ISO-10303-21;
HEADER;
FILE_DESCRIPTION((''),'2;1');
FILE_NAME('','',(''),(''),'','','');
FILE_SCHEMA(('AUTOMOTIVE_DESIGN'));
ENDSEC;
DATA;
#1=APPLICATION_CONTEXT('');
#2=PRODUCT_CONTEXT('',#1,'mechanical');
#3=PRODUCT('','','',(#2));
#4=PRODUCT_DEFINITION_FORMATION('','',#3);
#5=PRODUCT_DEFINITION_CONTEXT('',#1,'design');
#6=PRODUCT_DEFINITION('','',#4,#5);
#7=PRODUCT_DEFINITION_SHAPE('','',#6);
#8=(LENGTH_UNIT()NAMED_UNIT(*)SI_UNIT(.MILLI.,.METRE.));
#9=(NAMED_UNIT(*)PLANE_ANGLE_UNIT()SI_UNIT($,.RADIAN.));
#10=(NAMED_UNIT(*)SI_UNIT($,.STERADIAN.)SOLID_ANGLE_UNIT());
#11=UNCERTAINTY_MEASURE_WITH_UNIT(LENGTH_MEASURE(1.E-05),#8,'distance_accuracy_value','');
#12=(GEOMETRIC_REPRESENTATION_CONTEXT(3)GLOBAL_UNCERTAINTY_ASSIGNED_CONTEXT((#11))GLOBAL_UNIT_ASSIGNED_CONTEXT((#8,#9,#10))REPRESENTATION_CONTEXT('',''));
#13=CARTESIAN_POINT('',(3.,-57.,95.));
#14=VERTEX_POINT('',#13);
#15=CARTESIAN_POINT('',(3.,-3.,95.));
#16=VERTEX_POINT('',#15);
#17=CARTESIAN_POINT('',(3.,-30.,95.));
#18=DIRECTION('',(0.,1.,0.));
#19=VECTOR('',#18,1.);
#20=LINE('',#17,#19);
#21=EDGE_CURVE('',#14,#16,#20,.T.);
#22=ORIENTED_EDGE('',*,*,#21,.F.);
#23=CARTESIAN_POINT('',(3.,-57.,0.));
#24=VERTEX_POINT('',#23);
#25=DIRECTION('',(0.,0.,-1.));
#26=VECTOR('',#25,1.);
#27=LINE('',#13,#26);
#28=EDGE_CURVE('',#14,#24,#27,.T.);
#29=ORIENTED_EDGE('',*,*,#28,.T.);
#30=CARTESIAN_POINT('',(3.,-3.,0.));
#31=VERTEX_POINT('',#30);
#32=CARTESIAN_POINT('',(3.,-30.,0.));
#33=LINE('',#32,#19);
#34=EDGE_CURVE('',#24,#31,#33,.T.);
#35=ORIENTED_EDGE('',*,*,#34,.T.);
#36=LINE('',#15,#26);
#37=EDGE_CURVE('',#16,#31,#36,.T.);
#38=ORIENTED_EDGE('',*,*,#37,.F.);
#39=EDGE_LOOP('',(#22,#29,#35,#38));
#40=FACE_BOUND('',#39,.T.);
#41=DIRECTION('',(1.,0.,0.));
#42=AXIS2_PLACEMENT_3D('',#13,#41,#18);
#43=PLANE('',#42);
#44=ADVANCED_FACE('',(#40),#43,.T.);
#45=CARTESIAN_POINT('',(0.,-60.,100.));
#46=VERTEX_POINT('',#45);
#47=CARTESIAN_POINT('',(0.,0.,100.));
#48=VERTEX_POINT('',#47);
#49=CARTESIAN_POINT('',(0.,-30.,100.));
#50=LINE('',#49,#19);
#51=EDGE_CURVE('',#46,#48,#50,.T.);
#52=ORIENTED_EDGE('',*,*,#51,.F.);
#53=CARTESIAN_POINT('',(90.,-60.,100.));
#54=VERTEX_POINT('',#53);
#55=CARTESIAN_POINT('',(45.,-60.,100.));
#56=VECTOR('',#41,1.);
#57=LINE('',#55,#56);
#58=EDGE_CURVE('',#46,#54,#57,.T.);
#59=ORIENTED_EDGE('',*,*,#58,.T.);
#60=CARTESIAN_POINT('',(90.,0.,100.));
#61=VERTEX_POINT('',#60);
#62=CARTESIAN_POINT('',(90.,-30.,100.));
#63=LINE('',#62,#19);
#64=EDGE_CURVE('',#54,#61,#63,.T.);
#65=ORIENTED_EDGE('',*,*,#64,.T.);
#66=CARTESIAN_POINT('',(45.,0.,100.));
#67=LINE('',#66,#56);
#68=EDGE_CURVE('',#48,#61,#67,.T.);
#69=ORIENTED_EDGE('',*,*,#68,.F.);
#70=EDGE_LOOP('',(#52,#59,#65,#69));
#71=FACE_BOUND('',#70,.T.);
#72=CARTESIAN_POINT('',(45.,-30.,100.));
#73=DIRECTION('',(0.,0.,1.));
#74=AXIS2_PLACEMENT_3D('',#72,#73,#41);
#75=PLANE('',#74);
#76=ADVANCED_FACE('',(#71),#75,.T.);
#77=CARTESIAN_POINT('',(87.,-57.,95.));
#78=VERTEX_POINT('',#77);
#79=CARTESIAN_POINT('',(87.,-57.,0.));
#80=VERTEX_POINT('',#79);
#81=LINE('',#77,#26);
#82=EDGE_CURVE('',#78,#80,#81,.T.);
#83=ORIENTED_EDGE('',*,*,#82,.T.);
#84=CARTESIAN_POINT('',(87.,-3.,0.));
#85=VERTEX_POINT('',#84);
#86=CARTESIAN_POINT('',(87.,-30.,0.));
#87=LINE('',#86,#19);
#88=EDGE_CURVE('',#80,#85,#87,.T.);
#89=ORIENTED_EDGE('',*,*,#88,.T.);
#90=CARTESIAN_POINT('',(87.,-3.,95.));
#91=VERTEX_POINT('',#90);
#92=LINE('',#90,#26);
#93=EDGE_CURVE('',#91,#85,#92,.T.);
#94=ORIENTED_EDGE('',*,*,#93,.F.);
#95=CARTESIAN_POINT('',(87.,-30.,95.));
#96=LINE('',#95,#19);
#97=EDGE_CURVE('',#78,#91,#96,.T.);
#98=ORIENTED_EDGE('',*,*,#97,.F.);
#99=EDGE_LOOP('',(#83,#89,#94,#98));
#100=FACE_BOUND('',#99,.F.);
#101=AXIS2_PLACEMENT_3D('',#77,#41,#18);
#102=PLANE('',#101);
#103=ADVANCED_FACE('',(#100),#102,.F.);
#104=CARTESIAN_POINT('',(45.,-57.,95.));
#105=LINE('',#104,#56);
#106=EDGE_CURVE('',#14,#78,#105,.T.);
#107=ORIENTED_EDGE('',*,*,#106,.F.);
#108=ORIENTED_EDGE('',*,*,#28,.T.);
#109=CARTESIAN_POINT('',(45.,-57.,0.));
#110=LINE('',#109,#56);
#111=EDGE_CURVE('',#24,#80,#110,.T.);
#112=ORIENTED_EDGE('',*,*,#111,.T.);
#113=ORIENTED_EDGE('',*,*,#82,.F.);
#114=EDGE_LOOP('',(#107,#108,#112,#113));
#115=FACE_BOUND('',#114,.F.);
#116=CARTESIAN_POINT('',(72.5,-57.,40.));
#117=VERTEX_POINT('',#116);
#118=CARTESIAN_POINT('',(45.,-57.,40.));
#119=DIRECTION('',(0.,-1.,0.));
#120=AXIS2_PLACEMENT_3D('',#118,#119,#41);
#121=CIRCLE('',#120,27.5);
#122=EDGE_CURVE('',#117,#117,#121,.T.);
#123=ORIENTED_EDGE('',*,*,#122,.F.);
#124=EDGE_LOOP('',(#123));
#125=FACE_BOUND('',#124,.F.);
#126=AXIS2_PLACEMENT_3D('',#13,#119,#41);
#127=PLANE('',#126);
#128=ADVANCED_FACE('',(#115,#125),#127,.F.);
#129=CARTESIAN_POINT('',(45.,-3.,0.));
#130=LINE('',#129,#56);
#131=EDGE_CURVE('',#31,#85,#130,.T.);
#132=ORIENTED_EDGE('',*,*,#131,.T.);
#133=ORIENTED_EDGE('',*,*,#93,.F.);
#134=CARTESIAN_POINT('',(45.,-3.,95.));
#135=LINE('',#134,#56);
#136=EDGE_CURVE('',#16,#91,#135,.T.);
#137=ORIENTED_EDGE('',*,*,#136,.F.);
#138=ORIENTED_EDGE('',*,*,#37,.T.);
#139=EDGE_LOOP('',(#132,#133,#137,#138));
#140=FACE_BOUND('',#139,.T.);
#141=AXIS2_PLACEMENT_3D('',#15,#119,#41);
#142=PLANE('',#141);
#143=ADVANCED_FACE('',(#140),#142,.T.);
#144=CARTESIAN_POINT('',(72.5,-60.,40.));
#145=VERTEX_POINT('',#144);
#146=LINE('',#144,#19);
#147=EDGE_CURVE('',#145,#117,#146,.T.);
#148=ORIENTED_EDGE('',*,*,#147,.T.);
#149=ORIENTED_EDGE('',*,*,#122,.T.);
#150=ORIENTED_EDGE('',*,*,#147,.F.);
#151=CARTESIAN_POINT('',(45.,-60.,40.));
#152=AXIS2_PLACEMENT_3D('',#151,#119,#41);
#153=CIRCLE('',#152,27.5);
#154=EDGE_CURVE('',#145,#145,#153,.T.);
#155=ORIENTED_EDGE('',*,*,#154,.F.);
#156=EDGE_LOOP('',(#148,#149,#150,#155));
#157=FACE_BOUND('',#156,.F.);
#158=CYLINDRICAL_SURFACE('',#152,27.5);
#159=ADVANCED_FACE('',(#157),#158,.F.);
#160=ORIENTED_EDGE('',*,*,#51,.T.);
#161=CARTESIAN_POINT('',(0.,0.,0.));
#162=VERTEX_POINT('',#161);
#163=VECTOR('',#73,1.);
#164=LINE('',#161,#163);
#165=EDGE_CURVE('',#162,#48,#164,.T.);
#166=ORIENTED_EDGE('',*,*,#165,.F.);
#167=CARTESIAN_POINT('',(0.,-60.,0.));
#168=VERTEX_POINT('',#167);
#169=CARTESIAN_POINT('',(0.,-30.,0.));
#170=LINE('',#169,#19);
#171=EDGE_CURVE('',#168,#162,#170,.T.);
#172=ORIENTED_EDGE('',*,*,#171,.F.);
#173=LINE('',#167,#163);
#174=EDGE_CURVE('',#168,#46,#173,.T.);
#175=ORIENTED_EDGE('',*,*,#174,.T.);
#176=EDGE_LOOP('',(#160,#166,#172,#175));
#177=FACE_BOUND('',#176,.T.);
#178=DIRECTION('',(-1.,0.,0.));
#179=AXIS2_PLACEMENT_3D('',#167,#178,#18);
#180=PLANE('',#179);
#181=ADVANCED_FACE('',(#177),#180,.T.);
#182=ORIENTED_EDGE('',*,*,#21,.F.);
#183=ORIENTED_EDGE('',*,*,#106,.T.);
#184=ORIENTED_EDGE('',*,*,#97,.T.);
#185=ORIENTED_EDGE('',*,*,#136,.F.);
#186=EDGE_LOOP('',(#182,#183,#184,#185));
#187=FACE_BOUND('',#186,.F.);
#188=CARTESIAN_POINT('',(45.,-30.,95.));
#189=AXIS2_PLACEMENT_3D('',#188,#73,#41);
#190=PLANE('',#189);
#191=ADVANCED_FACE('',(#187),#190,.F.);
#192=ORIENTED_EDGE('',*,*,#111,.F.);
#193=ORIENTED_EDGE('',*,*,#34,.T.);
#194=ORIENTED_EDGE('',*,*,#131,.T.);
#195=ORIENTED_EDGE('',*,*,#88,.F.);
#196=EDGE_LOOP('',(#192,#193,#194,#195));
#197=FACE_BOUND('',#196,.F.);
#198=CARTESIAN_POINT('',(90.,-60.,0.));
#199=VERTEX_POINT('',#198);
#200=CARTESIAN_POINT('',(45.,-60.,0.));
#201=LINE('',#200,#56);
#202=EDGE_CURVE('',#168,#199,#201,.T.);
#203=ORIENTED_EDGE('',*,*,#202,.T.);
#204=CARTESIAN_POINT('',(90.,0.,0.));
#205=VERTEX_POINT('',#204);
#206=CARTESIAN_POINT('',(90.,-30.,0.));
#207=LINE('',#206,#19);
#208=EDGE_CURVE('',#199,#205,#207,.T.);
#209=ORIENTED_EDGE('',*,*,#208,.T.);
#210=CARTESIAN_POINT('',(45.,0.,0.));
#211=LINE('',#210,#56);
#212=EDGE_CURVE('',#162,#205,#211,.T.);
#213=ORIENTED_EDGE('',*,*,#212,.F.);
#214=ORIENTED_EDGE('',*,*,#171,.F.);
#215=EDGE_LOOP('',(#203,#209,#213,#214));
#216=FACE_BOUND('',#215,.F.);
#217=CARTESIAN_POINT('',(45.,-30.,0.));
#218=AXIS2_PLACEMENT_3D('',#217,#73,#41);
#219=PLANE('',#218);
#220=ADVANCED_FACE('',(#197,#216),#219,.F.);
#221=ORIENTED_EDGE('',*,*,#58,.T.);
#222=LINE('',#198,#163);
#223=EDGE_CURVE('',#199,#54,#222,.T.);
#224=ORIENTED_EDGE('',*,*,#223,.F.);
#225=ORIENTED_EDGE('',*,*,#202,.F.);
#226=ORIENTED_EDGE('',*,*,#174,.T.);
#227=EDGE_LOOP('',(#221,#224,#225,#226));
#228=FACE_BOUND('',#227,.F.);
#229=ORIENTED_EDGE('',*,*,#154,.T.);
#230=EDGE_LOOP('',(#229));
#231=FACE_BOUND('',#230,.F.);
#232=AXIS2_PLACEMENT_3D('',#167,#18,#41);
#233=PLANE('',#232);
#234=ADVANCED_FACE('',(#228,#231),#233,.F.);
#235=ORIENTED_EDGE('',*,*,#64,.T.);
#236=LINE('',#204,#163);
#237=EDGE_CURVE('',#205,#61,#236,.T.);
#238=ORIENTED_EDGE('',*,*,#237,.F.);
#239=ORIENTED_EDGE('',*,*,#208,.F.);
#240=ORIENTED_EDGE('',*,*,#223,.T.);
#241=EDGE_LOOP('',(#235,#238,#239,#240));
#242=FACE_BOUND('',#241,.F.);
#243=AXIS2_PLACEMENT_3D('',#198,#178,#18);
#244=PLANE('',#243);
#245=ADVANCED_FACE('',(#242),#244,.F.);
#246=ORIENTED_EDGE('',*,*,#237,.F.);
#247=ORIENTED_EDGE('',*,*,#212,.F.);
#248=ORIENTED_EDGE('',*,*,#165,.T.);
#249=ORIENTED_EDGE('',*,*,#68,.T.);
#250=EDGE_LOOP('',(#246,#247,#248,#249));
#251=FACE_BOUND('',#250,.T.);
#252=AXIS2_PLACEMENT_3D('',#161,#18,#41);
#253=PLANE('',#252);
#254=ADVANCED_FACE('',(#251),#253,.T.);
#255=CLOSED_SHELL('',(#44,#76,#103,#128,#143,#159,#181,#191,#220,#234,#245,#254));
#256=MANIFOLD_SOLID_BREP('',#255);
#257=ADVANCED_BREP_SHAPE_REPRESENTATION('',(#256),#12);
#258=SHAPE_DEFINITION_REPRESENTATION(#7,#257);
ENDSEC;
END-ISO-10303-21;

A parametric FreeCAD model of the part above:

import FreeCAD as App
import Part
import Sketcher

V = App.Vector
Q = App.Units.Quantity

doc = App.newDocument("Part")
body = doc.addObject("PartDesign::Body", "Body")

# Sketch on XY plane
sketch1 = body.newObject("Sketcher::SketchObject", "Sketch")
sketch1.AttachmentSupport = (doc.getObject("XY_Plane"), [""])
sketch1.MapMode = "FlatFace"
sketch1.addGeometry([
    Part.LineSegment(V(0, 0, 0), V(0, -60, 0)),
    Part.LineSegment(V(0, -60, 0), V(90, -60, 0)),
    Part.LineSegment(V(90, -60, 0), V(90, 0, 0)),
    Part.LineSegment(V(90, 0, 0), V(0, 0, 0)),
], False)
sketch1.addConstraint([
    Sketcher.Constraint("Coincident", 0, 2, 1, 1),
    Sketcher.Constraint("Coincident", 1, 2, 2, 1),
    Sketcher.Constraint("Coincident", 2, 2, 3, 1),
    Sketcher.Constraint("Coincident", 3, 2, 0, 1),
    Sketcher.Constraint("Vertical", 0),
    Sketcher.Constraint("Horizontal", 1),
    Sketcher.Constraint("Vertical", 2),
    Sketcher.Constraint("Horizontal", 3),
    Sketcher.Constraint("Coincident", 3, 2, -1, 1),
    Sketcher.Constraint("DistanceX", 1, 1, 1, 2, Q("90 mm")),
    Sketcher.Constraint("DistanceY", 0, 2, 0, 1, Q("60 mm")),
])
pad1 = body.newObject("PartDesign::Pad", "Pad")
pad1.Profile = sketch1
pad1.Length = 100

# Sketch on XY plane
sketch2 = body.newObject("Sketcher::SketchObject", "Sketch001")
sketch2.AttachmentSupport = (doc.getObject("XY_Plane"), [""])
sketch2.MapMode = "FlatFace"
sketch2.AttachmentOffset = App.Placement(V(0, 0, 95), App.Rotation())
sketch2.addGeometry([
    Part.LineSegment(V(3, -3, 0), V(3, -57, 0)),
    Part.LineSegment(V(3, -57, 0), V(87, -57, 0)),
    Part.LineSegment(V(87, -57, 0), V(87, -3, 0)),
    Part.LineSegment(V(87, -3, 0), V(3, -3, 0)),
], False)
sketch2.addConstraint([
    Sketcher.Constraint("Coincident", 0, 2, 1, 1),
    Sketcher.Constraint("Coincident", 1, 2, 2, 1),
    Sketcher.Constraint("Coincident", 2, 2, 3, 1),
    Sketcher.Constraint("Coincident", 3, 2, 0, 1),
    Sketcher.Constraint("Vertical", 0),
    Sketcher.Constraint("Horizontal", 1),
    Sketcher.Constraint("Vertical", 2),
    Sketcher.Constraint("Horizontal", 3),
    Sketcher.Constraint("DistanceX", 1, 1, 1, 2, Q("84 mm")),
    Sketcher.Constraint("DistanceY", 0, 2, 0, 1, Q("54 mm")),
    Sketcher.Constraint("DistanceX", -1, 1, 0, 2, Q("3 mm")),
    Sketcher.Constraint("DistanceY", 0, 2, -1, 1, Q("57 mm")),
])
pocket1 = body.newObject("PartDesign::Pocket", "Pocket")
pocket1.Profile = sketch2
pocket1.Type = "ThroughAll"

# Sketch on XZ plane
sketch3 = body.newObject("Sketcher::SketchObject", "Sketch002")
sketch3.AttachmentSupport = (doc.getObject("XZ_Plane"), [""])
sketch3.MapMode = "FlatFace"
sketch3.AttachmentOffset = App.Placement(V(0, 0, 60), App.Rotation())
sketch3.addGeometry(Part.Circle(V(45, 40, 0), V(0, 0, 1), 28), False)
sketch3.addConstraint([
    Sketcher.Constraint("Diameter", 0, Q("55 mm")),
    Sketcher.Constraint("DistanceX", -1, 1, 0, 3, Q("45 mm")),
    Sketcher.Constraint("DistanceY", -1, 1, 0, 3, Q("40 mm")),
])
pocket2 = body.newObject("PartDesign::Pocket", "Pocket001")
pocket2.Profile = sketch3
pocket2.Length = 3

doc.recompute()
